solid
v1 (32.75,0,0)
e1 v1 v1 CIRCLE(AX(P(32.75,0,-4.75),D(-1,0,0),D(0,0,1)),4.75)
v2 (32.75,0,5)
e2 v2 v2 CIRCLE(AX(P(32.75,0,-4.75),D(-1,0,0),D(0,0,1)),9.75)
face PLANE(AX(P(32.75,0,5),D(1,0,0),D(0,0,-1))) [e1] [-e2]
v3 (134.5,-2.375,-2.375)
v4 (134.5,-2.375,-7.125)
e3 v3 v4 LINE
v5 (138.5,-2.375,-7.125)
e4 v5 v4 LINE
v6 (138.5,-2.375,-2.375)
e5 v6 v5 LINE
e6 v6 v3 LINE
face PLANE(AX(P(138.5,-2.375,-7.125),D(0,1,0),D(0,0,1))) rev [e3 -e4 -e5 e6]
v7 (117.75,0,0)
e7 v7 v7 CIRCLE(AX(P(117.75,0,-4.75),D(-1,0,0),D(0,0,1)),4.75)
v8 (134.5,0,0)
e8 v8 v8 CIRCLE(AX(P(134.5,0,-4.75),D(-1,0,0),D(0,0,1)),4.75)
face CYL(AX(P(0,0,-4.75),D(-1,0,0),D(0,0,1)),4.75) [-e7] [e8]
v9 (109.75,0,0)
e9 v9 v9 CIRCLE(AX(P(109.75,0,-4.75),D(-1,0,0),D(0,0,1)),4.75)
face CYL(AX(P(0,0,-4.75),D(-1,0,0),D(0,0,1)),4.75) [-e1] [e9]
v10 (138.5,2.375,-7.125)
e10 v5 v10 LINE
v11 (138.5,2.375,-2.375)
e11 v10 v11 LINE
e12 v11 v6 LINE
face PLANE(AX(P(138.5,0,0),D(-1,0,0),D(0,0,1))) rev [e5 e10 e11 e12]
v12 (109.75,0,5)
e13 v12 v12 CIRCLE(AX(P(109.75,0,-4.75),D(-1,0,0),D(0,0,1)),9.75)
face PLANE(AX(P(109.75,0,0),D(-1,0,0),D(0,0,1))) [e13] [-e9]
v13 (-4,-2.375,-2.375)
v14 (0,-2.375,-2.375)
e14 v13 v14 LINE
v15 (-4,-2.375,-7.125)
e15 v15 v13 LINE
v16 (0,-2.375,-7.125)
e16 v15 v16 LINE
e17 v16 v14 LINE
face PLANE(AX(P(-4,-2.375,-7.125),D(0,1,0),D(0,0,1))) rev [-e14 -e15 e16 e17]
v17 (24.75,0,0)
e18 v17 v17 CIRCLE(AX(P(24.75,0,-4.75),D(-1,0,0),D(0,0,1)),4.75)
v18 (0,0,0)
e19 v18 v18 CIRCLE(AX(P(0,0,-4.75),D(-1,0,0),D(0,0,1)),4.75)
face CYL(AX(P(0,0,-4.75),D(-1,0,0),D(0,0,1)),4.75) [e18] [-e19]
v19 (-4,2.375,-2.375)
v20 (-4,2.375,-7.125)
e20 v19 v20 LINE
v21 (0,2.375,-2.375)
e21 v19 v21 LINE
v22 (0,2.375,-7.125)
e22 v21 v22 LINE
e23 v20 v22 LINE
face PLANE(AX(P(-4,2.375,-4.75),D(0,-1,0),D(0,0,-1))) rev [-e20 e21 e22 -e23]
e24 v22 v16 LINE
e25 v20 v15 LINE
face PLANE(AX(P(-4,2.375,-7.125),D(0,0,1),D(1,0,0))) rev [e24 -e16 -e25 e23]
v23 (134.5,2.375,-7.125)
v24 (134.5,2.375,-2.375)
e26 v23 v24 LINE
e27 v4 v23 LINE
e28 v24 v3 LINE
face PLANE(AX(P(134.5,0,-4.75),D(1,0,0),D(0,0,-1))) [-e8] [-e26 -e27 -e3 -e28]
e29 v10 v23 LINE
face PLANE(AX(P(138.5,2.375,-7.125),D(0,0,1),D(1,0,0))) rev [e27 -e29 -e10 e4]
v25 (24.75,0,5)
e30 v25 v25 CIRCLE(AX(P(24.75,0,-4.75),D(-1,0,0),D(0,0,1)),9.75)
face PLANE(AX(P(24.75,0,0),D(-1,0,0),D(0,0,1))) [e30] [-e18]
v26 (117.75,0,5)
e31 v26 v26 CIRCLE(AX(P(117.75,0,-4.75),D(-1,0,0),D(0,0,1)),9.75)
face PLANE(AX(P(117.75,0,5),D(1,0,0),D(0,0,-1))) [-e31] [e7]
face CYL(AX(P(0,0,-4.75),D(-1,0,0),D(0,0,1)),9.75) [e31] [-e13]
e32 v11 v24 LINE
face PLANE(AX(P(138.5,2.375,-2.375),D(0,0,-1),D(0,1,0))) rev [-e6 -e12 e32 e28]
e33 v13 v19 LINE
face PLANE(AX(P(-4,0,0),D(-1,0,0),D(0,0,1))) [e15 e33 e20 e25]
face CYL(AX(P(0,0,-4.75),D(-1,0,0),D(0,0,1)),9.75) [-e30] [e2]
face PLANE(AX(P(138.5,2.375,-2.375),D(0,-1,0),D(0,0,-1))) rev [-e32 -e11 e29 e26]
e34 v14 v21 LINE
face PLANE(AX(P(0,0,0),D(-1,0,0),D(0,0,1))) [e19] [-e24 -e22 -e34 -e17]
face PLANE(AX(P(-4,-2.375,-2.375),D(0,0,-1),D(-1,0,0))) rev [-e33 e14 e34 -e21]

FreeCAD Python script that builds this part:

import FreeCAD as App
import Part
import Sketcher


def add_polygon(sketch, points):
    """Adds a closed chain of lines whose ends are joined by coincident constraints."""
    first, n = sketch.GeometryCount, len(points)
    for a, b in zip(points, points[1:] + points[:1]):
        sketch.addGeometry(Part.LineSegment(App.Vector(*a, 0), App.Vector(*b, 0)), False)
    for i in range(n):
        sketch.addConstraint(Sketcher.Constraint("Coincident", first + i, 2, first + (i + 1) % n, 1))

doc = App.newDocument("Part")
body = doc.addObject("PartDesign::Body", "Body")

sketch1 = body.newObject("Sketcher::SketchObject", "Sketch")
sketch1.AttachmentSupport = (doc.getObject("XZ_Plane"), [""])
sketch1.MapMode = "FlatFace"
add_polygon(sketch1, [(0, -4.8), (0, 0), (24.8, 0), (24.8, 5), (32.8, 5), (32.8, 0), (109.8, 0), (109.8, 5), (117.8, 5), (117.8, 0), (134.5, 0), (134.5, -4.8)])
sketch1.addGeometry(Part.LineSegment(App.Vector(0, -4.8, 0), App.Vector(134.5, -4.8, 0)), True)
sketch1.addConstraint(Sketcher.Constraint("Vertical", 0))
sketch1.addConstraint(Sketcher.Constraint("Horizontal", 1))
sketch1.addConstraint(Sketcher.Constraint("Vertical", 2))
sketch1.addConstraint(Sketcher.Constraint("Horizontal", 3))
sketch1.addConstraint(Sketcher.Constraint("Vertical", 4))
sketch1.addConstraint(Sketcher.Constraint("Horizontal", 5))
sketch1.addConstraint(Sketcher.Constraint("Vertical", 6))
sketch1.addConstraint(Sketcher.Constraint("Horizontal", 7))
sketch1.addConstraint(Sketcher.Constraint("Vertical", 8))
sketch1.addConstraint(Sketcher.Constraint("Horizontal", 9))
sketch1.addConstraint(Sketcher.Constraint("Vertical", 10))
sketch1.addConstraint(Sketcher.Constraint("Horizontal", 11))
sketch1.addConstraint(Sketcher.Constraint("Horizontal", 12))
sketch1.addConstraint(Sketcher.Constraint("Coincident", 0, 2, -1, 1))
sketch1.addConstraint(Sketcher.Constraint("Coincident", 12, 1, 11, 2))
sketch1.addConstraint(Sketcher.Constraint("PointOnObject", 4, 2, -1))
sketch1.addConstraint(Sketcher.Constraint("PointOnObject", 8, 2, -1))
sketch1.addConstraint(Sketcher.Constraint("Horizontal", 3, 2, 6, 2))
sketch1.addConstraint(Sketcher.Constraint("Vertical", 9, 2, 12, 2))
sketch1.addConstraint(Sketcher.Constraint("Equal", 3, 7))
sketch1.addConstraint(Sketcher.Constraint("DistanceX", 3, 1, 3, 2, 8.0))
sketch1.addConstraint(Sketcher.Constraint("DistanceX", 5, 1, 5, 2, 77.0))
sketch1.addConstraint(Sketcher.Constraint("DistanceY", 2, 1, 2, 2, 5.0))
sketch1.addConstraint(Sketcher.Constraint("DistanceX", 11, 2, 11, 1, 134.5))
sketch1.addConstraint(Sketcher.Constraint("DistanceX", 1, 1, 1, 2, 24.75))
sketch1.addConstraint(Sketcher.Constraint("DistanceY", 0, 1, 0, 2, 4.75))
revolution = body.newObject("PartDesign::Revolution", "Revolution")
revolution.Profile = sketch1
revolution.ReferenceAxis = (sketch1, ["Axis0"])
revolution.Angle = 360

sketch2 = body.newObject("Sketcher::SketchObject", "Sketch001")
sketch2.AttachmentSupport = (doc.getObject("YZ_Plane"), [""])
sketch2.MapMode = "FlatFace"
sketch2.AttachmentOffset = App.Placement(App.Vector(0, 0, 134.5), App.Rotation())
add_polygon(sketch2, [(2.4, -2.4), (-2.4, -2.4), (-2.4, -7.1), (2.4, -7.1)])
sketch2.addConstraint(Sketcher.Constraint("Horizontal", 0))
sketch2.addConstraint(Sketcher.Constraint("Vertical", 1))
sketch2.addConstraint(Sketcher.Constraint("Horizontal", 2))
sketch2.addConstraint(Sketcher.Constraint("Vertical", 3))
sketch2.addConstraint(Sketcher.Constraint("Equal", 2, 1))
sketch2.addConstraint(Sketcher.Constraint("DistanceX", 0, 2, 0, 1, 4.75))
sketch2.addConstraint(Sketcher.Constraint("DistanceX", 0, 2, -1, 1, 2.375))
sketch2.addConstraint(Sketcher.Constraint("DistanceY", 0, 2, -1, 1, 2.375))
pad1 = body.newObject("PartDesign::Pad", "Pad")
pad1.Profile = sketch2
pad1.Length = 4

sketch3 = body.newObject("Sketcher::SketchObject", "Sketch002")
sketch3.AttachmentSupport = (doc.getObject("YZ_Plane"), [""])
sketch3.MapMode = "FlatFace"
add_polygon(sketch3, [(2.4, -7.1), (-2.4, -7.1), (-2.4, -2.4), (2.4, -2.4)])
sketch3.addConstraint(Sketcher.Constraint("Horizontal", 0))
sketch3.addConstraint(Sketcher.Constraint("Vertical", 1))
sketch3.addConstraint(Sketcher.Constraint("Horizontal", 2))
sketch3.addConstraint(Sketcher.Constraint("Vertical", 3))
sketch3.addConstraint(Sketcher.Constraint("Equal", 2, 1))
sketch3.addConstraint(Sketcher.Constraint("DistanceX", 0, 2, 0, 1, 4.75))
sketch3.addConstraint(Sketcher.Constraint("DistanceX", 0, 2, -1, 1, 2.375))
sketch3.addConstraint(Sketcher.Constraint("DistanceY", 0, 2, -1, 1, 7.125))
pad2 = body.newObject("PartDesign::Pad", "Pad001")
pad2.Profile = sketch3
pad2.Length = 4
pad2.Reversed = True

doc.recompute()
